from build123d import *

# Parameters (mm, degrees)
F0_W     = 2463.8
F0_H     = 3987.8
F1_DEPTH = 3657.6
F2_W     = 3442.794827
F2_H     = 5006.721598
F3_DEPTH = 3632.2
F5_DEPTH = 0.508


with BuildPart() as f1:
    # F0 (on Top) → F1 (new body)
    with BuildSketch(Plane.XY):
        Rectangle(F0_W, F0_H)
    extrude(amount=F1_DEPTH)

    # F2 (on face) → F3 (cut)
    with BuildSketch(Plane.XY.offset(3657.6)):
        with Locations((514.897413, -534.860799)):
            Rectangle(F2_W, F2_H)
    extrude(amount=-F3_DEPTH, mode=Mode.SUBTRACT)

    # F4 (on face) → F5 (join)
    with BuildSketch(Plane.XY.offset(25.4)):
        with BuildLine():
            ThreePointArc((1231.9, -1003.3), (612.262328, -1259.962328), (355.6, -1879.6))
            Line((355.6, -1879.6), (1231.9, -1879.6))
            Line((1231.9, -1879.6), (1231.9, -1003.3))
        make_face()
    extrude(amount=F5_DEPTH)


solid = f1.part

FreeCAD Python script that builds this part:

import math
import FreeCAD as App
import Part
import Sketcher
from FreeCAD import Vector
Q = App.Units.Quantity

doc = App.newDocument("Part")
body = doc.addObject("PartDesign::Body", "Body")

# Sketch on XY plane
sketch1 = body.newObject("Sketcher::SketchObject", "Sketch")
sketch1.AttachmentSupport = (doc.getObject("XY_Plane"), [""])
sketch1.MapMode = "FlatFace"
sketch1.addGeometry([
    Part.LineSegment(Vector(-1232, 1994, 0), Vector(-1232, -1994, 0)),
    Part.LineSegment(Vector(-1232, -1994, 0), Vector(1232, -1994, 0)),
    Part.LineSegment(Vector(1232, -1994, 0), Vector(1232, 1994, 0)),
    Part.LineSegment(Vector(1232, 1994, 0), Vector(-1232, 1994, 0)),
], False)
sketch1.addConstraint([
    Sketcher.Constraint("Coincident", 0, 2, 1, 1),
    Sketcher.Constraint("Coincident", 1, 2, 2, 1),
    Sketcher.Constraint("Coincident", 2, 2, 3, 1),
    Sketcher.Constraint("Coincident", 3, 2, 0, 1),
    Sketcher.Constraint("Vertical", 0),
    Sketcher.Constraint("Horizontal", 1),
    Sketcher.Constraint("Vertical", 2),
    Sketcher.Constraint("Horizontal", 3),
    Sketcher.Constraint("Symmetric", 0, 2, 2, 2, -1, 1),
    Sketcher.Constraint("DistanceX", 1, 1, 1, 2, Q("97 in")),
    Sketcher.Constraint("DistanceY", 0, 2, 0, 1, Q("157 in")),
])
pad1 = body.newObject("PartDesign::Pad", "Pad")
pad1.Profile = sketch1
pad1.Length = Q("144 in")

# Sketch on XY plane
sketch2 = body.newObject("Sketcher::SketchObject", "Sketch001")
sketch2.AttachmentSupport = (doc.getObject("XY_Plane"), [""])
sketch2.MapMode = "FlatFace"
sketch2.AttachmentOffset = App.Placement(Vector(0, 0, 144 * 25.4), App.Rotation())
sketch2.addGeometry([
    Part.LineSegment(Vector(-1207, 1968, 0), Vector(-1207, -3038, 0)),
    Part.LineSegment(Vector(-1207, -3038, 0), Vector(2236, -3038, 0)),
    Part.LineSegment(Vector(2236, -3038, 0), Vector(2236, 1968, 0)),
    Part.LineSegment(Vector(2236, 1968, 0), Vector(-1207, 1968, 0)),
], False)
sketch2.addConstraint([
    Sketcher.Constraint("Coincident", 0, 2, 1, 1),
    Sketcher.Constraint("Coincident", 1, 2, 2, 1),
    Sketcher.Constraint("Coincident", 2, 2, 3, 1),
    Sketcher.Constraint("Coincident", 3, 2, 0, 1),
    Sketcher.Constraint("Vertical", 0),
    Sketcher.Constraint("Horizontal", 1),
    Sketcher.Constraint("Vertical", 2),
    Sketcher.Constraint("Horizontal", 3),
    Sketcher.Constraint("DistanceX", 0, 2, -1, 1, Q("47.5 in")),
    Sketcher.Constraint("DistanceY", -1, 1, 2, 2, Q("77.5 in")),
    Sketcher.Constraint("DistanceY", 0, 2, 0, 1, 5006.721598),
    Sketcher.Constraint("DistanceX", 1, 1, 1, 2, 3442.794827),
])
pocket1 = body.newObject("PartDesign::Pocket", "Pocket")
pocket1.Profile = sketch2
pocket1.Length = Q("143 in")

# Sketch on XY plane
sketch3 = body.newObject("Sketcher::SketchObject", "Sketch002")
sketch3.AttachmentSupport = (doc.getObject("XY_Plane"), [""])
sketch3.MapMode = "FlatFace"
sketch3.AttachmentOffset = App.Placement(Vector(0, 0, 1 * 25.4), App.Rotation())
sketch3.addGeometry([
    Part.ArcOfCircle(Part.Circle(Vector(1232, -1880, 0), Vector(0, 0, 1), 876), math.radians(90), math.radians(180)),
    Part.LineSegment(Vector(356, -1880, 0), Vector(1232, -1880, 0)),
    Part.LineSegment(Vector(1232, -1880, 0), Vector(1232, -1003, 0)),
], False)
sketch3.addConstraint([
    Sketcher.Constraint("Coincident", 0, 2, 1, 1),
    Sketcher.Constraint("Coincident", 1, 2, 2, 1),
    Sketcher.Constraint("Coincident", 2, 2, 0, 1),
    Sketcher.Constraint("Horizontal", 1),
    Sketcher.Constraint("Vertical", 2),
    Sketcher.Constraint("Coincident", 1, 2, 0, 3),
    Sketcher.Constraint("Radius", 0, Q("34.5 in")),
    Sketcher.Constraint("DistanceY", 0, 3, -1, 1, Q("74 in")),
    Sketcher.Constraint("DistanceX", -1, 1, 0, 2, Q("14 in")),
])
pad2 = body.newObject("PartDesign::Pad", "Pad001")
pad2.Profile = sketch3
pad2.Length = Q("0.02 in")

doc.recompute()
